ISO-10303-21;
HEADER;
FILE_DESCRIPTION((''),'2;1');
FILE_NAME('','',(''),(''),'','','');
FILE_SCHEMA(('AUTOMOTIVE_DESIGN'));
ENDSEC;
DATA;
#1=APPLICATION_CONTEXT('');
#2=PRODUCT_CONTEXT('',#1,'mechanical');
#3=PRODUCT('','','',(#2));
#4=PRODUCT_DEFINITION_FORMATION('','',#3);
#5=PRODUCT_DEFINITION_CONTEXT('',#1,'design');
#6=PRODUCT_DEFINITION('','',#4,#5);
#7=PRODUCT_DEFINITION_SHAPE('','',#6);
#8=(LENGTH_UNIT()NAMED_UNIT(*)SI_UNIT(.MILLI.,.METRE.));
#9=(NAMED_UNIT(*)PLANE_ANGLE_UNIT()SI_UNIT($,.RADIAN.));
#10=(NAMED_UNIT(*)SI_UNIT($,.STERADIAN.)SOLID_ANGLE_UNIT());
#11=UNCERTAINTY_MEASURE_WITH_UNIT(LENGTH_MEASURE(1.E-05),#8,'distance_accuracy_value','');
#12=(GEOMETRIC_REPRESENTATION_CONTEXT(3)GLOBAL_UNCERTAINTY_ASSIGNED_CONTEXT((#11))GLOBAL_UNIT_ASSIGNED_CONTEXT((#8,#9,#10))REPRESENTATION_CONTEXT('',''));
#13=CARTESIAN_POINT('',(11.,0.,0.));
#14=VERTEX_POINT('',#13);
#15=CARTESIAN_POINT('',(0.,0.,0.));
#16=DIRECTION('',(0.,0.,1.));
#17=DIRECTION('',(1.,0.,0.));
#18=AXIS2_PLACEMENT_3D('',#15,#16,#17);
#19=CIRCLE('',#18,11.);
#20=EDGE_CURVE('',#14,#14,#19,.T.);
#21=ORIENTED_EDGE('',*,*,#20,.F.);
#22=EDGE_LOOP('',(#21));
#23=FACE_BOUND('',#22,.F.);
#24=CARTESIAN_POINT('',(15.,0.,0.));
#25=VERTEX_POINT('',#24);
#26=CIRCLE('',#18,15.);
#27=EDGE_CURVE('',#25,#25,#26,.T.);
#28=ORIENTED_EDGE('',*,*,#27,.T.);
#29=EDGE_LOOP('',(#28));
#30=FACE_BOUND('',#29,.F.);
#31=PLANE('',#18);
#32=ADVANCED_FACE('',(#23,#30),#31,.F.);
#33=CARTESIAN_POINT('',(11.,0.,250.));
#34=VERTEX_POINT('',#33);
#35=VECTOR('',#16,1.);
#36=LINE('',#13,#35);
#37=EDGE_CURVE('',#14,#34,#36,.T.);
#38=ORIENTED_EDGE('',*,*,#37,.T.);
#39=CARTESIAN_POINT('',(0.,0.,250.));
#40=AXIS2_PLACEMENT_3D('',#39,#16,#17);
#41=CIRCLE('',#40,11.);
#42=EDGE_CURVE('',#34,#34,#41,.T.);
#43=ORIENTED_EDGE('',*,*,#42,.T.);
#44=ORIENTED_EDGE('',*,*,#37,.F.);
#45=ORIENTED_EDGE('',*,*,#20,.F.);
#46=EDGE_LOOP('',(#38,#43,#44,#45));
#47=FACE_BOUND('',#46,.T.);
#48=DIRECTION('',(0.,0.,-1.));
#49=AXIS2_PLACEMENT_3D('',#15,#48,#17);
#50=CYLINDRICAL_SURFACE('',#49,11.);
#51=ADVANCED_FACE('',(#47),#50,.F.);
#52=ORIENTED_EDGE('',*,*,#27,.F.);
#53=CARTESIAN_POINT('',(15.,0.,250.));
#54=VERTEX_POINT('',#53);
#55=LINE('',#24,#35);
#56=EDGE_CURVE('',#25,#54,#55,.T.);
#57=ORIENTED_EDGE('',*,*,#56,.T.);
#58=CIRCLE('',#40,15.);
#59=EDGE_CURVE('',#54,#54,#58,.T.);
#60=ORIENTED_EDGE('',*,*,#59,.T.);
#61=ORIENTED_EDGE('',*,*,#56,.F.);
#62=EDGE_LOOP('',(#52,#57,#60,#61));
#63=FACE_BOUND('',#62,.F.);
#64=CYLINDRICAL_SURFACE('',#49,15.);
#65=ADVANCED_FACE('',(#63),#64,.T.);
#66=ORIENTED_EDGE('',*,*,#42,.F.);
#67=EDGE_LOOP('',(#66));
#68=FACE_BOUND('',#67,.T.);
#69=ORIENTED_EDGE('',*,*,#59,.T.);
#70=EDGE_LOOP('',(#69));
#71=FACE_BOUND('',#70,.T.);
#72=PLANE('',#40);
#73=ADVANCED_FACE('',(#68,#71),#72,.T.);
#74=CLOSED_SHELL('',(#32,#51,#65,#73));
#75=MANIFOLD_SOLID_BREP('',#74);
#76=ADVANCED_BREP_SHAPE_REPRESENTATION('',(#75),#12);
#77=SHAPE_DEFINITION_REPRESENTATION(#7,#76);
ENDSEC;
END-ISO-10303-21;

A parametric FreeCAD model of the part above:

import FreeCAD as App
import Part
import Sketcher

V = App.Vector

doc = App.newDocument("Part")
params = doc.addObject("Spreadsheet::Sheet", "Params")
for row, (alias, value) in enumerate([
    ("sketch1_diameter", "30 mm"),
    ("sketch1_diameter2", "22 mm"),
    ("pad1_length", "250 mm"),
], start=1):
    params.set(f"A{row}", alias)
    params.set(f"B{row}", "=" + value)
    params.setAlias(f"B{row}", alias)

body = doc.addObject("PartDesign::Body", "Body")

# Sketch on XY plane
sketch1 = doc.addObject("Sketcher::SketchObject", "Sketch")
body.addObject(sketch1)
sketch1.AttachmentSupport = (doc.XY_Plane, [""])
sketch1.MapMode = "FlatFace"
sketch1.addGeometry([
    Part.Circle(V(0, 0, 0), V(0, 0, 1), 15),
    Part.Circle(V(0, 0, 0), V(0, 0, 1), 11),
], False)
sketch1.addConstraint([
    Sketcher.Constraint("Coincident", 0, 3, -1, 1),
    Sketcher.Constraint("Coincident", 1, 3, -1, 1),
    Sketcher.Constraint("Diameter", 0, 30.0),
    Sketcher.Constraint("Diameter", 1, 22.0),
])
sketch1.setExpression("Constraints[2]", "Params.sketch1_diameter")
sketch1.setExpression("Constraints[3]", "Params.sketch1_diameter2")
pad1 = doc.addObject("PartDesign::Pad", "Pad")
body.addObject(pad1)
pad1.Profile = sketch1
pad1.setExpression("Length", "Params.pad1_length")

doc.recompute()
